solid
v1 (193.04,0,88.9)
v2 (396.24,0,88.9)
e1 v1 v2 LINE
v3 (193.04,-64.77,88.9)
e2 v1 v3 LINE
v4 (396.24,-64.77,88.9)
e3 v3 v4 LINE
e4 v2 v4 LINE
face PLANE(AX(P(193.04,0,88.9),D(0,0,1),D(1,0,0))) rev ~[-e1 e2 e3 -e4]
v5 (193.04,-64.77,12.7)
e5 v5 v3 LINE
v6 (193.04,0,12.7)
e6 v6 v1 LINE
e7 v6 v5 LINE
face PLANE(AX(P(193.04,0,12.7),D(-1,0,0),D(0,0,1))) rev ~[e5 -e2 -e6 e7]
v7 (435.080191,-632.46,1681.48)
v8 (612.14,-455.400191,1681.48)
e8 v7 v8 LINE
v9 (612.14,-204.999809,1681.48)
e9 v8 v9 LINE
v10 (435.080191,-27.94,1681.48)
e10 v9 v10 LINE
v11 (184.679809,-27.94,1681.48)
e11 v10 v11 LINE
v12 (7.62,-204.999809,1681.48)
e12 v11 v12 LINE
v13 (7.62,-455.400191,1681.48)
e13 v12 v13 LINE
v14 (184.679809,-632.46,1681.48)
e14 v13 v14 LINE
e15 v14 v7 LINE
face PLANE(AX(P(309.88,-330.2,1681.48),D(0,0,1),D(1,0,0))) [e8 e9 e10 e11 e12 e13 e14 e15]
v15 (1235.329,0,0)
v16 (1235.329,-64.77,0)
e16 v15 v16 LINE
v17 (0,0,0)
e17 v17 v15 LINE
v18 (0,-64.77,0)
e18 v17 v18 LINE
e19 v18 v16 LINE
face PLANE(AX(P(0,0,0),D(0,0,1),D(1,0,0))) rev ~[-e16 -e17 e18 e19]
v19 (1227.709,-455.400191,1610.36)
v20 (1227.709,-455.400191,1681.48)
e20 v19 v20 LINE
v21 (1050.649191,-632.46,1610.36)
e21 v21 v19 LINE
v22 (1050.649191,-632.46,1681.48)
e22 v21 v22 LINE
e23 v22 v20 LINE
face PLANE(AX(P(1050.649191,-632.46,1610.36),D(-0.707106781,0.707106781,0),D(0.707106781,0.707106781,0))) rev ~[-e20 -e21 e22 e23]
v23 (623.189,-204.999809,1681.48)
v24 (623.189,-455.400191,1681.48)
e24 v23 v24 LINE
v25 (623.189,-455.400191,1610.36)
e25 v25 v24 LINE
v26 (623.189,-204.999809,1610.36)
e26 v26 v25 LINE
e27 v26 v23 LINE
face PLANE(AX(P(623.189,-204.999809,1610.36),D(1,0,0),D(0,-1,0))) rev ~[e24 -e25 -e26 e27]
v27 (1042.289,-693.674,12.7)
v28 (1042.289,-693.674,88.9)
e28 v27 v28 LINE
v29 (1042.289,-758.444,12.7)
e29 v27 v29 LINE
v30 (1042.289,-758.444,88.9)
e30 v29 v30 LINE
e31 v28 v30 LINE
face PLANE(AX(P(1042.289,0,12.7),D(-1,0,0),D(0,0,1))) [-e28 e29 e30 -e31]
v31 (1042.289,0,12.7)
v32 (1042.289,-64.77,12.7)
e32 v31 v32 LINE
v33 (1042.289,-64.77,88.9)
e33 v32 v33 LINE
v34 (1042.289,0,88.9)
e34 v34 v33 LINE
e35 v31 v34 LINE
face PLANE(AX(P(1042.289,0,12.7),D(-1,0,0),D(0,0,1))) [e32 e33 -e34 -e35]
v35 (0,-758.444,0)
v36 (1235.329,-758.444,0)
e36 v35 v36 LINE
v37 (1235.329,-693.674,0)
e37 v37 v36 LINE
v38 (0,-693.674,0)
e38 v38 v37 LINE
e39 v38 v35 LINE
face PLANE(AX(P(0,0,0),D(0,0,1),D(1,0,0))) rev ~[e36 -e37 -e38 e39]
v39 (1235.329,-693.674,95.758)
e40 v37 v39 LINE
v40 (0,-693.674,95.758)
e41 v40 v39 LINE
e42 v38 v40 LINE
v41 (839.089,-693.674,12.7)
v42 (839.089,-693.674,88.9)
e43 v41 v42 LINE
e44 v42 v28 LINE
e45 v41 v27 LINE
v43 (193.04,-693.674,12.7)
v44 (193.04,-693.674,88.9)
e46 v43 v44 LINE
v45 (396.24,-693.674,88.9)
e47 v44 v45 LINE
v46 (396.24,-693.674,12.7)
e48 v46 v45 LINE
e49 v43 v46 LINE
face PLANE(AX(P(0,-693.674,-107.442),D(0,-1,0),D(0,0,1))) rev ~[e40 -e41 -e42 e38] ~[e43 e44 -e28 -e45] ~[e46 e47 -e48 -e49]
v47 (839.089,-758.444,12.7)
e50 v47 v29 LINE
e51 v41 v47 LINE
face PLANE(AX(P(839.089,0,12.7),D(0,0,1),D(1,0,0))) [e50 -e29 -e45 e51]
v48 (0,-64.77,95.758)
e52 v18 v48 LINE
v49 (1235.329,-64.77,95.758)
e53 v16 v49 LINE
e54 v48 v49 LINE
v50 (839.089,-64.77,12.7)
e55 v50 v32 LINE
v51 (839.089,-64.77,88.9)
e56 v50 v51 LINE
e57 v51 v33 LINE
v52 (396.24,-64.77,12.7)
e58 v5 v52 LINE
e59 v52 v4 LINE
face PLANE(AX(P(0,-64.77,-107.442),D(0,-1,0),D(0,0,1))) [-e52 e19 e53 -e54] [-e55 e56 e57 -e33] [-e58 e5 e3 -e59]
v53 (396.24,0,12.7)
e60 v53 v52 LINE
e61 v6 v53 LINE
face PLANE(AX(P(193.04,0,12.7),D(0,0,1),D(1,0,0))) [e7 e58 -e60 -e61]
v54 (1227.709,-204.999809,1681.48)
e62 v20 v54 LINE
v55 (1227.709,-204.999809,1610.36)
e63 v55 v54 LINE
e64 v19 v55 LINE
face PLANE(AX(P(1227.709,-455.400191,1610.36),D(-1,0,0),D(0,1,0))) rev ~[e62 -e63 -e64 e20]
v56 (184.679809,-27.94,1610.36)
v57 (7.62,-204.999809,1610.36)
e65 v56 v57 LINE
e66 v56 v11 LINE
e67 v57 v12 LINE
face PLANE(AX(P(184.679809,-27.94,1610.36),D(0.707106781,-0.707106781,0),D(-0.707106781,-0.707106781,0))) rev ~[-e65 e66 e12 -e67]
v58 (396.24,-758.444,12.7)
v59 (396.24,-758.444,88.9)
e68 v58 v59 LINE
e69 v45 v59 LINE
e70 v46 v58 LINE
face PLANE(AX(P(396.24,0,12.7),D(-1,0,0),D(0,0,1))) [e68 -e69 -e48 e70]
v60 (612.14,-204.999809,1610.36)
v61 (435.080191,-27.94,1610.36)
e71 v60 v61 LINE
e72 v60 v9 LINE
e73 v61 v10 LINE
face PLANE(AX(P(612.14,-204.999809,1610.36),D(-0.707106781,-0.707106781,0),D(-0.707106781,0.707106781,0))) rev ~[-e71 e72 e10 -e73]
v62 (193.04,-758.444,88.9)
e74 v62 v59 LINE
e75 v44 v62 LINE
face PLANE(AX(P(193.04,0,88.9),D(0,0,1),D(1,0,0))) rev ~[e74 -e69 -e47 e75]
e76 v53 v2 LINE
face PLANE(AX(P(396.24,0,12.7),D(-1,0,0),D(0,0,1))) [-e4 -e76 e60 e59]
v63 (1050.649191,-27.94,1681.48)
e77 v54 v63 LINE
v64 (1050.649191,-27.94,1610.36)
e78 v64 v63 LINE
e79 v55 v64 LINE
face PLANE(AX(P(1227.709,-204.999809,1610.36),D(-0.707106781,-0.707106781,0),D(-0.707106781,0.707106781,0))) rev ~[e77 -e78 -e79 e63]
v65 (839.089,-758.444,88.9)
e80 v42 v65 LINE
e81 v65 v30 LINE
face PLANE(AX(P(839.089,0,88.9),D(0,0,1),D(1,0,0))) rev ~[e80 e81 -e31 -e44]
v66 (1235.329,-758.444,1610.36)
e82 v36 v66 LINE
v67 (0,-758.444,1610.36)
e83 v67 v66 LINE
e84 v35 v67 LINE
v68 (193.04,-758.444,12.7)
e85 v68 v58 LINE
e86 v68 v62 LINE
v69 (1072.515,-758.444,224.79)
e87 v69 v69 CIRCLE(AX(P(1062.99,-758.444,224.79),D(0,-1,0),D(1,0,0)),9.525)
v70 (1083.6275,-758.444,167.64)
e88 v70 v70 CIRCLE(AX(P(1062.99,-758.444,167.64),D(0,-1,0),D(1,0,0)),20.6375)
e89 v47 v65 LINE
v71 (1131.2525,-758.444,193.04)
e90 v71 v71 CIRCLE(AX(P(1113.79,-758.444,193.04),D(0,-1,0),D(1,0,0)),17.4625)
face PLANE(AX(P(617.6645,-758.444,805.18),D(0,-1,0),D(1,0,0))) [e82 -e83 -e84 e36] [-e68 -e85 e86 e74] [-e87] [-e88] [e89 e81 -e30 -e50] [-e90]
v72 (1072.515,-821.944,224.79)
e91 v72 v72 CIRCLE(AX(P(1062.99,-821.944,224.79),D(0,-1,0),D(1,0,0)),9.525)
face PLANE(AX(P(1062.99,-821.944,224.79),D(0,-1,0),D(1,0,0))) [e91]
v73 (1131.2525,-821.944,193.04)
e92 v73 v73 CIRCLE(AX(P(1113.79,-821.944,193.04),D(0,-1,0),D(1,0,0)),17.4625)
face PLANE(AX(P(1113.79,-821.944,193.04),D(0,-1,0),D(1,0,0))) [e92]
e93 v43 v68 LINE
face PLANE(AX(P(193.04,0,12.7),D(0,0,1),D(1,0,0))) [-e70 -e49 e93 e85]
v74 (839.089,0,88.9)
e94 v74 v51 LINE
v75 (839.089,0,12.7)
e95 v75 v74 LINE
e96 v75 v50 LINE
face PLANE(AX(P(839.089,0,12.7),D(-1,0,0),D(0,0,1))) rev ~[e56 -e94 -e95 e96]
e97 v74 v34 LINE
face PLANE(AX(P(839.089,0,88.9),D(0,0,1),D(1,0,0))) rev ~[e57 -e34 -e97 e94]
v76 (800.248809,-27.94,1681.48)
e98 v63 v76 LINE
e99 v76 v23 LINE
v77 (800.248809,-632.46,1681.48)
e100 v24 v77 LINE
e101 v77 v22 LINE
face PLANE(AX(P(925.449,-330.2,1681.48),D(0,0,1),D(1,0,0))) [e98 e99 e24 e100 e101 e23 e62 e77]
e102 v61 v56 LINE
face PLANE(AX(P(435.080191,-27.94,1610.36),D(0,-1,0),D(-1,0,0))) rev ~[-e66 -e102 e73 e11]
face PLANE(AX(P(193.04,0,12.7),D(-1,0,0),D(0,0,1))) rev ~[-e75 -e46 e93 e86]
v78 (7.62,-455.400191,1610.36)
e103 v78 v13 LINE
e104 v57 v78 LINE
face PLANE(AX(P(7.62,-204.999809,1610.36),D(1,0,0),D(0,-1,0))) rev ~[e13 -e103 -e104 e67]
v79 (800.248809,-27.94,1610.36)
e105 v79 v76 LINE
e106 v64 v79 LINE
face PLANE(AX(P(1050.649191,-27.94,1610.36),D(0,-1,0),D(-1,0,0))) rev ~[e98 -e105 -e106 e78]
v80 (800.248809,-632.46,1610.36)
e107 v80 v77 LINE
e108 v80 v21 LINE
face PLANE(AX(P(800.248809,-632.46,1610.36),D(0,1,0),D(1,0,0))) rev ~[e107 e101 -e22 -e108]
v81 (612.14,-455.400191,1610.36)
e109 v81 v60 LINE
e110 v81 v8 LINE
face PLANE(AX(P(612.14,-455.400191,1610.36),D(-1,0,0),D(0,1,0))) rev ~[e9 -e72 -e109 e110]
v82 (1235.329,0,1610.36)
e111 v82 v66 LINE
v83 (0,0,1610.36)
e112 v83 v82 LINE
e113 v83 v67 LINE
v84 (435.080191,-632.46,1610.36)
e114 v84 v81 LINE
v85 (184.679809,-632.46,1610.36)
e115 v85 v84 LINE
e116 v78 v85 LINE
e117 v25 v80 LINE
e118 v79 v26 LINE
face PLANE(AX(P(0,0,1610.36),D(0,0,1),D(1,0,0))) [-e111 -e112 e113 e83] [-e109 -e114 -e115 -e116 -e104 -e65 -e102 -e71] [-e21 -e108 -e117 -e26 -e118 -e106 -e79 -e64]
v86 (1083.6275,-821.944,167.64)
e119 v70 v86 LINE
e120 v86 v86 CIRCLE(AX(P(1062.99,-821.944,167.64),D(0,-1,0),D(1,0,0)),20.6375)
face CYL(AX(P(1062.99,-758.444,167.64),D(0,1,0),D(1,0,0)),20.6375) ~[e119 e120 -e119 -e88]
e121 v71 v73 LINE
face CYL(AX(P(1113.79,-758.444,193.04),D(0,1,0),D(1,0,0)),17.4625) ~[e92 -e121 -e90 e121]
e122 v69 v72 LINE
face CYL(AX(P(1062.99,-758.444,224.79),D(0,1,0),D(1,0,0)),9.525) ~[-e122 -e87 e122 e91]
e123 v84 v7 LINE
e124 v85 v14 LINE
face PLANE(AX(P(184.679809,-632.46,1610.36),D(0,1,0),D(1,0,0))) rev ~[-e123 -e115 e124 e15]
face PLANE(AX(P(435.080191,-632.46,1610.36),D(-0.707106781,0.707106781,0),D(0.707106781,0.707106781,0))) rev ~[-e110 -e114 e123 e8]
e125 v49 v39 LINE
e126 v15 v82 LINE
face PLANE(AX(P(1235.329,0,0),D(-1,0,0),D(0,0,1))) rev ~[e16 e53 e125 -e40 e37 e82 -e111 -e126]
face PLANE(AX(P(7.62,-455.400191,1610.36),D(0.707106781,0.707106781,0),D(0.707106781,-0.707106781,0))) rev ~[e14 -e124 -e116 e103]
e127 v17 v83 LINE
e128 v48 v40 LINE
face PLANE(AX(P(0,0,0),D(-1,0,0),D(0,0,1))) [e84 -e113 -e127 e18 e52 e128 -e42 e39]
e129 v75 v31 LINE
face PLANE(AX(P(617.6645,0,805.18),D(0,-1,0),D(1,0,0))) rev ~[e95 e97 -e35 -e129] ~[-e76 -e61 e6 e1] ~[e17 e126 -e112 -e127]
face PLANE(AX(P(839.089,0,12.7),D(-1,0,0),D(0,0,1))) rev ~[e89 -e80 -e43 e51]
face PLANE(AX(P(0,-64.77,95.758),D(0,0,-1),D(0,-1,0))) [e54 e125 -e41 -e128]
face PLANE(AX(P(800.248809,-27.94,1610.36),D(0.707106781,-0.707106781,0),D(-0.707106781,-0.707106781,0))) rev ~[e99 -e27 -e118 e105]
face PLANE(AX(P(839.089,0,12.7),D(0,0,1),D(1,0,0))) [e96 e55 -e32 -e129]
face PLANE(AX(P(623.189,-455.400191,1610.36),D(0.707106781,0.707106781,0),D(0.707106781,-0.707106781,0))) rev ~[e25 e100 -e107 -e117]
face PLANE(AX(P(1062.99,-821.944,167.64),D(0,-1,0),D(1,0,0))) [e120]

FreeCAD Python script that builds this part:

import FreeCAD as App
import Part
import Sketcher

V = App.Vector
Q = App.Units.Quantity

doc = App.newDocument("Part")
body = doc.addObject("PartDesign::Body", "Body")

sketch1 = body.newObject("Sketcher::SketchObject", "Sketch")
sketch1.AttachmentSupport = (doc.getObject("XZ_Plane"), [""])
sketch1.MapMode = "FlatFace"
sketch1.addGeometry([
    Part.LineSegment(V(0, 1610, 0), V(0, 0, 0)),
    Part.LineSegment(V(0, 0, 0), V(1235, 0, 0)),
    Part.LineSegment(V(1235, 0, 0), V(1235, 1610, 0)),
    Part.LineSegment(V(1235, 1610, 0), V(0, 1610, 0)),
    Part.LineSegment(V(396, 13, 0), V(193, 13, 0)),
    Part.LineSegment(V(193, 13, 0), V(193, 89, 0)),
    Part.LineSegment(V(193, 89, 0), V(396, 89, 0)),
    Part.LineSegment(V(396, 89, 0), V(396, 13, 0)),
    Part.LineSegment(V(1042, 13, 0), V(839, 13, 0)),
    Part.LineSegment(V(839, 13, 0), V(839, 89, 0)),
    Part.LineSegment(V(839, 89, 0), V(1042, 89, 0)),
    Part.LineSegment(V(1042, 89, 0), V(1042, 13, 0)),
], False)
sketch1.addConstraint([
    Sketcher.Constraint("Coincident", 0, 2, 1, 1),
    Sketcher.Constraint("Coincident", 1, 2, 2, 1),
    Sketcher.Constraint("Coincident", 2, 2, 3, 1),
    Sketcher.Constraint("Coincident", 3, 2, 0, 1),
    Sketcher.Constraint("Coincident", 4, 2, 5, 1),
    Sketcher.Constraint("Coincident", 5, 2, 6, 1),
    Sketcher.Constraint("Coincident", 6, 2, 7, 1),
    Sketcher.Constraint("Coincident", 7, 2, 4, 1),
    Sketcher.Constraint("Coincident", 8, 2, 9, 1),
    Sketcher.Constraint("Coincident", 9, 2, 10, 1),
    Sketcher.Constraint("Coincident", 10, 2, 11, 1),
    Sketcher.Constraint("Coincident", 11, 2, 8, 1),
    Sketcher.Constraint("Vertical", 0),
    Sketcher.Constraint("Horizontal", 1),
    Sketcher.Constraint("Vertical", 2),
    Sketcher.Constraint("Horizontal", 3),
    Sketcher.Constraint("Horizontal", 4),
    Sketcher.Constraint("Vertical", 5),
    Sketcher.Constraint("Horizontal", 6),
    Sketcher.Constraint("Vertical", 7),
    Sketcher.Constraint("Horizontal", 8),
    Sketcher.Constraint("Vertical", 9),
    Sketcher.Constraint("Horizontal", 10),
    Sketcher.Constraint("Vertical", 11),
    Sketcher.Constraint("Coincident", 0, 2, -1, 1),
    Sketcher.Constraint("Horizontal", 7, 2, 8, 2),
    Sketcher.Constraint("Horizontal", 6, 2, 9, 2),
    Sketcher.Constraint("Equal", 6, 8),
    Sketcher.Constraint("DistanceX", 4, 2, 4, 1, Q("8 in")),
    Sketcher.Constraint("DistanceY", 5, 1, 5, 2, Q("3 in")),
    Sketcher.Constraint("DistanceY", 0, 2, 0, 1, Q("63.4 in")),
    Sketcher.Constraint("DistanceX", -1, 1, 4, 2, Q("7.6 in")),
    Sketcher.Constraint("DistanceY", -1, 1, 4, 2, Q("0.5 in")),
    Sketcher.Constraint("DistanceX", 8, 2, 1, 2, Q("15.6 in")),
    Sketcher.Constraint("DistanceX", 1, 1, 1, 2, Q("48.635 in")),
])
pad1 = body.newObject("PartDesign::Pad", "Pad")
pad1.Profile = sketch1
pad1.Length = Q("29.86 in")

sketch2 = body.newObject("Sketcher::SketchObject", "Sketch001")
sketch2.AttachmentSupport = (doc.getObject("YZ_Plane"), [""])
sketch2.MapMode = "FlatFace"
sketch2.addGeometry([
    Part.LineSegment(V(-65, 96, 0), V(-65, -107, 0)),
    Part.LineSegment(V(-65, -107, 0), V(-694, -107, 0)),
    Part.LineSegment(V(-694, -107, 0), V(-694, 96, 0)),
    Part.LineSegment(V(-694, 96, 0), V(-65, 96, 0)),
], False)
sketch2.addConstraint([
    Sketcher.Constraint("Coincident", 0, 2, 1, 1),
    Sketcher.Constraint("Coincident", 1, 2, 2, 1),
    Sketcher.Constraint("Coincident", 2, 2, 3, 1),
    Sketcher.Constraint("Coincident", 3, 2, 0, 1),
    Sketcher.Constraint("Vertical", 0),
    Sketcher.Constraint("Horizontal", 1),
    Sketcher.Constraint("Vertical", 2),
    Sketcher.Constraint("Horizontal", 3),
    Sketcher.Constraint("DistanceY", 0, 2, 0, 1, Q("8 in")),
    Sketcher.Constraint("DistanceX", 1, 2, 1, 1, Q("24.76 in")),
    Sketcher.Constraint("DistanceX", 0, 2, -1, 1, Q("2.55 in")),
    Sketcher.Constraint("DistanceY", 0, 2, -1, 1, Q("4.23 in")),
])
pocket1 = body.newObject("PartDesign::Pocket", "Pocket")
pocket1.Profile = sketch2
pocket1.Type = "ThroughAll"
pocket1.Reversed = True

sketch3 = body.newObject("Sketcher::SketchObject", "Sketch002")
sketch3.AttachmentSupport = (doc.getObject("XY_Plane"), [""])
sketch3.MapMode = "FlatFace"
sketch3.AttachmentOffset = App.Placement(V(0, 0, 63.4 * 25.4), App.Rotation())
sketch3.addGeometry([
    Part.LineSegment(V(435, -632, 0), V(612, -455, 0)),
    Part.LineSegment(V(612, -455, 0), V(612, -205, 0)),
    Part.LineSegment(V(612, -205, 0), V(435, -28, 0)),
    Part.LineSegment(V(435, -28, 0), V(185, -28, 0)),
    Part.LineSegment(V(185, -28, 0), V(8, -205, 0)),
    Part.LineSegment(V(8, -205, 0), V(8, -455, 0)),
    Part.LineSegment(V(8, -455, 0), V(185, -632, 0)),
    Part.LineSegment(V(185, -632, 0), V(435, -632, 0)),
    Part.LineSegment(V(1051, -632, 0), V(1228, -455, 0)),
    Part.LineSegment(V(1228, -455, 0), V(1228, -205, 0)),
    Part.LineSegment(V(1228, -205, 0), V(1051, -28, 0)),
    Part.LineSegment(V(1051, -28, 0), V(800, -28, 0)),
    Part.LineSegment(V(800, -28, 0), V(623, -205, 0)),
    Part.LineSegment(V(623, -205, 0), V(623, -455, 0)),
    Part.LineSegment(V(623, -455, 0), V(800, -632, 0)),
    Part.LineSegment(V(800, -632, 0), V(1051, -632, 0)),
], False)
sketch3.addConstraint([
    Sketcher.Constraint("Coincident", 0, 2, 1, 1),
    Sketcher.Constraint("Coincident", 1, 2, 2, 1),
    Sketcher.Constraint("Coincident", 2, 2, 3, 1),
    Sketcher.Constraint("Coincident", 3, 2, 4, 1),
    Sketcher.Constraint("Coincident", 4, 2, 5, 1),
    Sketcher.Constraint("Coincident", 5, 2, 6, 1),
    Sketcher.Constraint("Coincident", 6, 2, 7, 1),
    Sketcher.Constraint("Coincident", 7, 2, 0, 1),
    Sketcher.Constraint("Coincident", 8, 2, 9, 1),
    Sketcher.Constraint("Coincident", 9, 2, 10, 1),
    Sketcher.Constraint("Coincident", 10, 2, 11, 1),
    Sketcher.Constraint("Coincident", 11, 2, 12, 1),
    Sketcher.Constraint("Coincident", 12, 2, 13, 1),
    Sketcher.Constraint("Coincident", 13, 2, 14, 1),
    Sketcher.Constraint("Coincident", 14, 2, 15, 1),
    Sketcher.Constraint("Coincident", 15, 2, 8, 1),
    Sketcher.Constraint("Vertical", 1),
    Sketcher.Constraint("Horizontal", 3),
    Sketcher.Constraint("Vertical", 5),
    Sketcher.Constraint("Horizontal", 7),
    Sketcher.Constraint("Vertical", 9),
    Sketcher.Constraint("Horizontal", 11),
    Sketcher.Constraint("Vertical", 13),
    Sketcher.Constraint("Horizontal", 15),
    Sketcher.Constraint("Perpendicular", 0, 2),
    Sketcher.Constraint("Perpendicular", 2, 4),
    Sketcher.Constraint("Perpendicular", 4, 6),
    Sketcher.Constraint("Perpendicular", 6, 8),
    Sketcher.Constraint("Perpendicular", 8, 10),
    Sketcher.Constraint("Perpendicular", 10, 12),
    Sketcher.Constraint("Perpendicular", 12, 14),
    Sketcher.Constraint("Horizontal", 1, 2, 4, 2),
    Sketcher.Constraint("Horizontal", 0, 2, 5, 2),
    Sketcher.Constraint("Horizontal", 5, 2, 8, 2),
    Sketcher.Constraint("Horizontal", 4, 2, 9, 2),
    Sketcher.Constraint("Horizontal", 3, 2, 10, 2),
    Sketcher.Constraint("Horizontal", 9, 2, 12, 2),
    Sketcher.Constraint("Horizontal", 8, 2, 13, 2),
    Sketcher.Constraint("Horizontal", 7, 2, 14, 2),
    Sketcher.Constraint("Vertical", 3, 2, 6, 2),
    Sketcher.Constraint("Vertical", 2, 2, 7, 2),
    Sketcher.Constraint("Equal", 7, 11),
    Sketcher.Constraint("Equal", 15, 1),
    Sketcher.Constraint("DistanceX", -1, 1, 0, 2, Q("24.1 in")),
    Sketcher.Constraint("DistanceY", 2, 2, -1, 1, Q("1.1 in")),
    Sketcher.Constraint("DistanceX", -1, 1, 4, 2, Q("0.3 in")),
    Sketcher.Constraint("DistanceX", -1, 1, 8, 2, Q("48.335 in")),
    Sketcher.Constraint("DistanceX", 3, 2, 3, 1, Q("250.400382 mm")),
])
pad2 = body.newObject("PartDesign::Pad", "Pad001")
pad2.Profile = sketch3
pad2.Length = Q("2.8 in")

sketch4 = body.newObject("Sketcher::SketchObject", "Sketch003")
sketch4.AttachmentSupport = (doc.getObject("XZ_Plane"), [""])
sketch4.MapMode = "FlatFace"
sketch4.AttachmentOffset = App.Placement(V(0, 0, 29.86 * 25.4), App.Rotation())
sketch4.addGeometry([
    Part.Circle(V(1063, 225, 0), V(0, 0, 1), 10),
    Part.Circle(V(1114, 193, 0), V(0, 0, 1), 17),
    Part.Circle(V(1063, 168, 0), V(0, 0, 1), 21),
], False)
sketch4.addConstraint([
    Sketcher.Constraint("Vertical", 0, 3, 2, 3),
    Sketcher.Constraint("Diameter", 0, Q("0.75 in")),
    Sketcher.Constraint("Diameter", 1, Q("1.375 in")),
    Sketcher.Constraint("Diameter", 2, Q("1.625 in")),
    Sketcher.Constraint("DistanceX", 0, 3, 1, 3, Q("2 in")),
    Sketcher.Constraint("DistanceY", 2, 3, 1, 3, Q("1 in")),
    Sketcher.Constraint("DistanceY", -1, 1, 1, 3, Q("7.6 in")),
    Sketcher.Constraint("DistanceX", -1, 1, 0, 3, Q("41.85 in")),
    Sketcher.Constraint("DistanceY", -1, 1, 0, 3, Q("8.85 in")),
])
pad3 = body.newObject("PartDesign::Pad", "Pad002")
pad3.Profile = sketch4
pad3.Length = Q("2.5 in")

doc.recompute()
